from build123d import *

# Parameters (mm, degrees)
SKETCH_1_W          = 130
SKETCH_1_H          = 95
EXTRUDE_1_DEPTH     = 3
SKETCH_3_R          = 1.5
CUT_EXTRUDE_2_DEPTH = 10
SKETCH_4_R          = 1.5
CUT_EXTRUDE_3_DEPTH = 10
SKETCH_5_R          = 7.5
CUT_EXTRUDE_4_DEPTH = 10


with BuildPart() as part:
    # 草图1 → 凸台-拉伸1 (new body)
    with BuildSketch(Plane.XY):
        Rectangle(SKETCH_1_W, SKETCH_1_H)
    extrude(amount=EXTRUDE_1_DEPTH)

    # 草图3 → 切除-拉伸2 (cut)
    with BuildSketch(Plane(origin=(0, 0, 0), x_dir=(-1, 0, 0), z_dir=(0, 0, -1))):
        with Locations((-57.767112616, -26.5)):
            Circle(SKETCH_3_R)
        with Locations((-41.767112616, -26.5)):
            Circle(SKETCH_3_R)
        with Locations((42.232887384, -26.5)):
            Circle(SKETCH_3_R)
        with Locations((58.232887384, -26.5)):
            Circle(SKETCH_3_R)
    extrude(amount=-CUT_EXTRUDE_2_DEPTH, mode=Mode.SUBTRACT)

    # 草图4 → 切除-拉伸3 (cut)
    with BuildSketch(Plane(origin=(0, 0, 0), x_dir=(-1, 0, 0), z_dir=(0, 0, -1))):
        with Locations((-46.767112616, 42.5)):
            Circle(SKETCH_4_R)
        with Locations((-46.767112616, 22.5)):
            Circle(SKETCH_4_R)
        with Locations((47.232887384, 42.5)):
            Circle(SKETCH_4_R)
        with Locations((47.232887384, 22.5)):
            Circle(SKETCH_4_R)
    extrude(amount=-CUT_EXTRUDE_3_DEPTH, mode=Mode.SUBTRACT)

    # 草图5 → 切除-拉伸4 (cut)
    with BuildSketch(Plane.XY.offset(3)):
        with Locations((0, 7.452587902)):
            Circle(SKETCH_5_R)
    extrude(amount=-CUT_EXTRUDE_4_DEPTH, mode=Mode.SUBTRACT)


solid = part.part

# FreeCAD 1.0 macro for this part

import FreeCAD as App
import Part
import Sketcher
Q = App.Units.Quantity


def add_polygon(sketch, points):
    """Adds a closed chain of lines whose ends are joined by coincident constraints."""
    first, n = sketch.GeometryCount, len(points)
    for a, b in zip(points, points[1:] + points[:1]):
        sketch.addGeometry(Part.LineSegment(App.Vector(*a, 0), App.Vector(*b, 0)), False)
    for i in range(n):
        sketch.addConstraint(Sketcher.Constraint("Coincident", first + i, 2, first + (i + 1) % n, 1))

doc = App.newDocument("Part")
params = doc.addObject("Spreadsheet::Sheet", "Params")
for row, (alias, value) in enumerate([
    ("sketch1_width", "130 mm"),
    ("sketch1_height", "95 mm"),
    ("pad1_length", "3 mm"),
    ("sketch2_diameter", "3 mm"),
    ("pocket1_length", "10 mm"),
    ("sketch3_diameter", "3 mm"),
    ("pocket2_length", "10 mm"),
    ("sketch4_diameter", "15 mm"),
    ("pocket3_length", "10 mm"),
], start=1):
    params.set(f"A{row}", alias)
    params.set(f"B{row}", "=" + value)
    params.setAlias(f"B{row}", alias)

body = doc.addObject("PartDesign::Body", "Body")

sketch1 = body.newObject("Sketcher::SketchObject", "Sketch")
sketch1.AttachmentSupport = (doc.getObject("XY_Plane"), [""])
sketch1.MapMode = "FlatFace"
add_polygon(sketch1, [(-65, 47.5), (-65, -47.5), (65, -47.5), (65, 47.5)])
sketch1.addConstraint([
    Sketcher.Constraint("Vertical", 0),
    Sketcher.Constraint("Horizontal", 1),
    Sketcher.Constraint("Vertical", 2),
    Sketcher.Constraint("Horizontal", 3),
    Sketcher.Constraint("Symmetric", 0, 2, 2, 2, -1, 1),
    Sketcher.Constraint("DistanceX", 1, 1, 1, 2, Q("130 mm")),
    Sketcher.Constraint("DistanceY", 0, 2, 0, 1, Q("95 mm")),
])
sketch1.setExpression("Constraints[9]", "Params.sketch1_width")
sketch1.setExpression("Constraints[10]", "Params.sketch1_height")
pad1 = body.newObject("PartDesign::Pad", "Pad")
pad1.Profile = sketch1
pad1.setExpression("Length", "Params.pad1_length")

sketch2 = body.newObject("Sketcher::SketchObject", "Sketch001")
sketch2.AttachmentSupport = (doc.getObject("XY_Plane"), [""])
sketch2.MapMode = "FlatFace"
sketch2.addGeometry([
    Part.Circle(App.Vector(57.767113, -26.5, 0), App.Vector(0, 0, 1), 1.5),
    Part.Circle(App.Vector(41.767113, -26.5, 0), App.Vector(0, 0, 1), 1.5),
    Part.Circle(App.Vector(-42.232887, -26.5, 0), App.Vector(0, 0, 1), 1.5),
    Part.Circle(App.Vector(-58.232887, -26.5, 0), App.Vector(0, 0, 1), 1.5),
], False)
sketch2.addConstraint([
    Sketcher.Constraint("Equal", 0, 1),
    Sketcher.Constraint("Equal", 1, 2),
    Sketcher.Constraint("Equal", 2, 3),
    Sketcher.Constraint("Horizontal", 0, 3, 1, 3),
    Sketcher.Constraint("Horizontal", 1, 3, 2, 3),
    Sketcher.Constraint("Horizontal", 2, 3, 3, 3),
    Sketcher.Constraint("Diameter", 0, Q("3 mm")),
    Sketcher.Constraint("DistanceX", 1, 3, 0, 3, Q("16 mm")),
    Sketcher.Constraint("DistanceX", 2, 3, 1, 3, Q("84 mm")),
    Sketcher.Constraint("DistanceX", 3, 3, 2, 3, Q("16 mm")),
    Sketcher.Constraint("DistanceY", 0, 3, -1, 1, Q("26.5 mm")),
    Sketcher.Constraint("DistanceX", -1, 1, 0, 3, Q("57.767113 mm")),
])
sketch2.setExpression("Constraints[6]", "Params.sketch2_diameter")
pocket1 = body.newObject("PartDesign::Pocket", "Pocket")
pocket1.Profile = sketch2
pocket1.setExpression("Length", "Params.pocket1_length")
pocket1.Reversed = True

sketch3 = body.newObject("Sketcher::SketchObject", "Sketch002")
sketch3.AttachmentSupport = (doc.getObject("XY_Plane"), [""])
sketch3.MapMode = "FlatFace"
sketch3.addGeometry([
    Part.Circle(App.Vector(46.767113, 42.5, 0), App.Vector(0, 0, 1), 1.5),
    Part.Circle(App.Vector(46.767113, 22.5, 0), App.Vector(0, 0, 1), 1.5),
    Part.Circle(App.Vector(-47.232887, 42.5, 0), App.Vector(0, 0, 1), 1.5),
    Part.Circle(App.Vector(-47.232887, 22.5, 0), App.Vector(0, 0, 1), 1.5),
], False)
sketch3.addConstraint([
    Sketcher.Constraint("Equal", 0, 1),
    Sketcher.Constraint("Equal", 1, 2),
    Sketcher.Constraint("Equal", 2, 3),
    Sketcher.Constraint("Horizontal", 0, 3, 2, 3),
    Sketcher.Constraint("Horizontal", 1, 3, 3, 3),
    Sketcher.Constraint("Vertical", 0, 3, 1, 3),
    Sketcher.Constraint("Vertical", 2, 3, 3, 3),
    Sketcher.Constraint("Diameter", 0, Q("3 mm")),
    Sketcher.Constraint("DistanceY", 1, 3, 0, 3, Q("20 mm")),
    Sketcher.Constraint("DistanceX", 2, 3, 0, 3, Q("94 mm")),
    Sketcher.Constraint("DistanceY", -1, 1, 0, 3, Q("42.5 mm")),
    Sketcher.Constraint("DistanceX", -1, 1, 0, 3, Q("46.767113 mm")),
])
sketch3.setExpression("Constraints[7]", "Params.sketch3_diameter")
pocket2 = body.newObject("PartDesign::Pocket", "Pocket001")
pocket2.Profile = sketch3
pocket2.setExpression("Length", "Params.pocket2_length")
pocket2.Reversed = True

sketch4 = body.newObject("Sketcher::SketchObject", "Sketch003")
sketch4.AttachmentSupport = (doc.getObject("XY_Plane"), [""])
sketch4.MapMode = "FlatFace"
sketch4.AttachmentOffset = App.Placement(App.Vector(0, 0, 3), App.Rotation())
sketch4.addGeometry(Part.Circle(App.Vector(0, 7.452588, 0), App.Vector(0, 0, 1), 7.5), False)
sketch4.addConstraint([
    Sketcher.Constraint("PointOnObject", 0, 3, -2),
    Sketcher.Constraint("Diameter", 0, Q("15 mm")),
    Sketcher.Constraint("DistanceY", -1, 1, 0, 3, Q("7.452588 mm")),
])
sketch4.setExpression("Constraints[1]", "Params.sketch4_diameter")
pocket3 = body.newObject("PartDesign::Pocket", "Pocket002")
pocket3.Profile = sketch4
pocket3.setExpression("Length", "Params.pocket3_length")

doc.recompute()
